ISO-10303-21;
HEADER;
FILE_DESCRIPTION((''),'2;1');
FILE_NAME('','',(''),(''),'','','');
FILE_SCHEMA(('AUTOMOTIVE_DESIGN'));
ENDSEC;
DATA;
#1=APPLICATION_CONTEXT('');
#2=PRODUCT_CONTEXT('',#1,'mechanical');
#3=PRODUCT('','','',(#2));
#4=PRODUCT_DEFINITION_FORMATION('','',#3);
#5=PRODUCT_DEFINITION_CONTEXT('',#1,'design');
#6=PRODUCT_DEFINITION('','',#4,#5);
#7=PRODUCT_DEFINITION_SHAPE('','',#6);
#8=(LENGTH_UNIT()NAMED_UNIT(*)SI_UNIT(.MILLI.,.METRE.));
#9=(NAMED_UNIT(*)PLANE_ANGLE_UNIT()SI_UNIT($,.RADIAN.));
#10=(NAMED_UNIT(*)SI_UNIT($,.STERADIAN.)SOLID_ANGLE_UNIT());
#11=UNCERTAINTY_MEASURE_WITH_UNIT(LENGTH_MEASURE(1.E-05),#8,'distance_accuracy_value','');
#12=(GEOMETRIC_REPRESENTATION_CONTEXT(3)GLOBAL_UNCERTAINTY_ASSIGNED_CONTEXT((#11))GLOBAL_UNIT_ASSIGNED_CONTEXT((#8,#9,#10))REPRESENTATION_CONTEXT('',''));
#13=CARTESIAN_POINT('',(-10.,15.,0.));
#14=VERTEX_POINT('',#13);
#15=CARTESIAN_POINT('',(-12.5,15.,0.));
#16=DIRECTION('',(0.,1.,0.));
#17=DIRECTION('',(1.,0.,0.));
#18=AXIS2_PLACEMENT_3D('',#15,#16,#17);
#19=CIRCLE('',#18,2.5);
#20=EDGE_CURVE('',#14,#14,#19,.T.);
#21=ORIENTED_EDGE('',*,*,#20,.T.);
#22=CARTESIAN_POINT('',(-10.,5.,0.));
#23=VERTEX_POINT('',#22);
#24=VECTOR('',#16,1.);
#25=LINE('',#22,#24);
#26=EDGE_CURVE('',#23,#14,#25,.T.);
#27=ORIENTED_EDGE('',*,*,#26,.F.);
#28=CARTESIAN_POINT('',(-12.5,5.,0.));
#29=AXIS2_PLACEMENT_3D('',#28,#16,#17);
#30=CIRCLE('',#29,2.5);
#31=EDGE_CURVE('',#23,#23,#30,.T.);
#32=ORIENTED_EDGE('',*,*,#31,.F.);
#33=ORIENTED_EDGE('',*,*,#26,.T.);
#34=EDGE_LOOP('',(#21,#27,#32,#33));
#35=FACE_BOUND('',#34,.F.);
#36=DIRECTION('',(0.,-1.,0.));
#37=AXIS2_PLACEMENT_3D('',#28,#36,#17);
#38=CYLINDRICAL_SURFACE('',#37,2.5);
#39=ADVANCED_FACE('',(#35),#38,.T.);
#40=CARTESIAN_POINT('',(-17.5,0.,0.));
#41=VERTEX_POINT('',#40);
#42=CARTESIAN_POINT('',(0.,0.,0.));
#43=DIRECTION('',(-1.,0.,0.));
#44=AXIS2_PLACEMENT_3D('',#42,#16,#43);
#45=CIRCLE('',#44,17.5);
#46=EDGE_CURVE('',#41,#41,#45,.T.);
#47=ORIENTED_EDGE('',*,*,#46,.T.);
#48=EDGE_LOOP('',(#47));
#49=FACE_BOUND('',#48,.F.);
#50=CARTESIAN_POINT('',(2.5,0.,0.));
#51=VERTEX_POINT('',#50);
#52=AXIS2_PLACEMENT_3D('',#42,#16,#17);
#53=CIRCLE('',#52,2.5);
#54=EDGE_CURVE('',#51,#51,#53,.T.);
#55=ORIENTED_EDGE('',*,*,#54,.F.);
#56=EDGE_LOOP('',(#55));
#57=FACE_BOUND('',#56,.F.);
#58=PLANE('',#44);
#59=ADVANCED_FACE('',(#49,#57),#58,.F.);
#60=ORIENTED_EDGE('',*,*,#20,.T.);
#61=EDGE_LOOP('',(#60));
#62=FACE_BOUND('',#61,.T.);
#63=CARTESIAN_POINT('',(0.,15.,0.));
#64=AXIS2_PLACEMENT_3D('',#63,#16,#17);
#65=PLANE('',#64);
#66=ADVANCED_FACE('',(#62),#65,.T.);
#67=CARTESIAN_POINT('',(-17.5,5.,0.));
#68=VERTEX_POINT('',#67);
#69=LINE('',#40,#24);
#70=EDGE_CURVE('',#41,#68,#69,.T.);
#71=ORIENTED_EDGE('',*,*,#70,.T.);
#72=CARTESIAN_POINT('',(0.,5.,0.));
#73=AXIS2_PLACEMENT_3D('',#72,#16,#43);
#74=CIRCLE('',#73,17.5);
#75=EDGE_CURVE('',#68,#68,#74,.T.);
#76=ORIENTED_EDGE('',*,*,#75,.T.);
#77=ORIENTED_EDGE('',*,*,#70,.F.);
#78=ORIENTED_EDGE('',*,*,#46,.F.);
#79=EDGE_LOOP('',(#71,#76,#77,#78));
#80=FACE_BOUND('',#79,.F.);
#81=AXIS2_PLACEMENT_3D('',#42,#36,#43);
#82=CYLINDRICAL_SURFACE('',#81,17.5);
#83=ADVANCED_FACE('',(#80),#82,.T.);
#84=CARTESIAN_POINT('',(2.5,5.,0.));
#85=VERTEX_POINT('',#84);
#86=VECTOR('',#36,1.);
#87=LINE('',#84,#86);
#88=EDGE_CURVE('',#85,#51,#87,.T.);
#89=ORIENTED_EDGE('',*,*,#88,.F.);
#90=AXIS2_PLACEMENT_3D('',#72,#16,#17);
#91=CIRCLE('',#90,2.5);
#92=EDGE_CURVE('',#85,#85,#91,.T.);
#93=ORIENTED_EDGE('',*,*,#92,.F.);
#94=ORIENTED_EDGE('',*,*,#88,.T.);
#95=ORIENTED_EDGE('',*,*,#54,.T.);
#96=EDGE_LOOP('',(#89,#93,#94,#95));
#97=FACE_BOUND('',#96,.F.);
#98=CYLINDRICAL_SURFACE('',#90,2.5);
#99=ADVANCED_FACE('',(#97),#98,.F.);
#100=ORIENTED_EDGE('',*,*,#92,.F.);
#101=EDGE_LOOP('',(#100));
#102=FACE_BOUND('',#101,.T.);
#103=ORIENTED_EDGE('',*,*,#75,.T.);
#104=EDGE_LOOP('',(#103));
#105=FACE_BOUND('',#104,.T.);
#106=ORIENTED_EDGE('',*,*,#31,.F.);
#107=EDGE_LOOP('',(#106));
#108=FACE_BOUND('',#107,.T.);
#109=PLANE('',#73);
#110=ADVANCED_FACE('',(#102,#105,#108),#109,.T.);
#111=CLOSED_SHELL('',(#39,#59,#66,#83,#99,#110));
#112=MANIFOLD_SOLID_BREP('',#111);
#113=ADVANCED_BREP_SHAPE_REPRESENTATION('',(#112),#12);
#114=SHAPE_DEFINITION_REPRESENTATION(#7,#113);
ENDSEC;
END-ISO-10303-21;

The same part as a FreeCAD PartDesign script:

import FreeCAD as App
import Part
import Sketcher

doc = App.newDocument("Part")
body = doc.addObject("PartDesign::Body", "Body")

# Sketch on XZ plane
sketch1 = body.newObject("Sketcher::SketchObject", "Sketch")
sketch1.AttachmentSupport = (doc.getObject("XZ_Plane"), [""])
sketch1.MapMode = "FlatFace"
sketch1.addGeometry(Part.Circle(App.Vector(0, 0, 0), App.Vector(0, 0, 1), 18), False)
sketch1.addConstraint([
    Sketcher.Constraint("Coincident", 0, 3, -1, 1),
    Sketcher.Constraint("Diameter", 0, 35.0),
])
pad1 = body.newObject("PartDesign::Pad", "Pad")
pad1.Profile = sketch1
pad1.Length = 5
pad1.Reversed = True

# Sketch on XZ plane
sketch2 = body.newObject("Sketcher::SketchObject", "Sketch001")
sketch2.AttachmentSupport = (doc.getObject("XZ_Plane"), [""])
sketch2.MapMode = "FlatFace"
sketch2.AttachmentOffset = App.Placement(App.Vector(0, 0, -5), App.Rotation())
sketch2.addGeometry(Part.Circle(App.Vector(-12.5, 0, 0), App.Vector(0, 0, 1), 2.5), False)
sketch2.addConstraint([
    Sketcher.Constraint("PointOnObject", 0, 3, -1),
    Sketcher.Constraint("Diameter", 0, 5.0),
    Sketcher.Constraint("DistanceX", 0, 3, -1, 1, 12.5),
])
pad2 = body.newObject("PartDesign::Pad", "Pad001")
pad2.Profile = sketch2
pad2.Length = 10
pad2.Reversed = True

# Sketch on XZ plane
sketch3 = body.newObject("Sketcher::SketchObject", "Sketch002")
sketch3.AttachmentSupport = (doc.getObject("XZ_Plane"), [""])
sketch3.MapMode = "FlatFace"
sketch3.AttachmentOffset = App.Placement(App.Vector(0, 0, -5), App.Rotation())
sketch3.addGeometry(Part.Circle(App.Vector(0, 0, 0), App.Vector(0, 0, 1), 2.5), False)
sketch3.addConstraint([
    Sketcher.Constraint("Coincident", 0, 3, -1, 1),
    Sketcher.Constraint("Diameter", 0, 5.0),
])
pocket1 = body.newObject("PartDesign::Pocket", "Pocket")
pocket1.Profile = sketch3
pocket1.Type = "ThroughAll"
pocket1.Reversed = True

doc.recompute()
